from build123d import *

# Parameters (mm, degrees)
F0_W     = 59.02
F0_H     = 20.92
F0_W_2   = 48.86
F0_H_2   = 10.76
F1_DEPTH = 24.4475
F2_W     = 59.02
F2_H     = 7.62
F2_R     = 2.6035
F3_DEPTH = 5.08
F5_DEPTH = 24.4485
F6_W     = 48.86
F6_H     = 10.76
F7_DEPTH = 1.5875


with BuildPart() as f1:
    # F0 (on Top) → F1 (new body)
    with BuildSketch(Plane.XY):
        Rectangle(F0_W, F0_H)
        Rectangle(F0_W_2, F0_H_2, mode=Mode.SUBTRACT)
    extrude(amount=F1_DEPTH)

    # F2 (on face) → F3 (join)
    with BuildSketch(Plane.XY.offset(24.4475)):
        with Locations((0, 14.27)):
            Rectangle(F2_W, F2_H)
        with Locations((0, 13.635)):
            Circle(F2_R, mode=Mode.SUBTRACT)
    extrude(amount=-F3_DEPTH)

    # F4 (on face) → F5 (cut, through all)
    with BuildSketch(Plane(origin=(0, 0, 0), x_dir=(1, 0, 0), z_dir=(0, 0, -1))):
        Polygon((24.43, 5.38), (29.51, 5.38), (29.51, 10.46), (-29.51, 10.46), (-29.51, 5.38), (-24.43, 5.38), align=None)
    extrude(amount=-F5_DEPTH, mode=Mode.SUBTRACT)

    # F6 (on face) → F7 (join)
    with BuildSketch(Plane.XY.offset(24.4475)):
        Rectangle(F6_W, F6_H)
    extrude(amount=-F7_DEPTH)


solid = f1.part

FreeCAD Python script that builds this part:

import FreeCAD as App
import Part
import Sketcher

V = App.Vector
Q = App.Units.Quantity


def add_polygon(sketch, points):
    """Adds a closed chain of lines whose ends are joined by coincident constraints."""
    first, n = sketch.GeometryCount, len(points)
    for a, b in zip(points, points[1:] + points[:1]):
        sketch.addGeometry(Part.LineSegment(App.Vector(*a, 0), App.Vector(*b, 0)), False)
    for i in range(n):
        sketch.addConstraint(Sketcher.Constraint("Coincident", first + i, 2, first + (i + 1) % n, 1))

doc = App.newDocument("Part")
params = doc.addObject("Spreadsheet::Sheet", "Params")
for row, (alias, value) in enumerate([
    ("pad1_length", "0.9625 in"),
    ("sketch2_diameter", "0.205 in"),
    ("sketch2_height", "0.3 in"),
    ("pad2_length", "0.2 in"),
    ("sketch3_height", "0.2 in"),
    ("pad3_length", "0.0625 in"),
], start=1):
    params.set(f"A{row}", alias)
    params.set(f"B{row}", "=" + value)
    params.setAlias(f"B{row}", alias)

body = doc.addObject("PartDesign::Body", "Body")

# Sketch on XY plane
sketch1 = body.newObject("Sketcher::SketchObject", "Sketch")
sketch1.AttachmentSupport = (doc.getObject("XY_Plane"), [""])
sketch1.MapMode = "FlatFace"
add_polygon(sketch1, [(-30, 10), (-30, -10), (30, -10), (30, 10)])  # lines 0-3
add_polygon(sketch1, [(24, -5), (-24, -5), (-24, 5), (24, 5)])  # lines 4-7
sketch1.addConstraint(Sketcher.Constraint("Vertical", 0))
sketch1.addConstraint(Sketcher.Constraint("Horizontal", 1))
sketch1.addConstraint(Sketcher.Constraint("Vertical", 2))
sketch1.addConstraint(Sketcher.Constraint("Horizontal", 3))
sketch1.addConstraint(Sketcher.Constraint("Horizontal", 4))
sketch1.addConstraint(Sketcher.Constraint("Vertical", 5))
sketch1.addConstraint(Sketcher.Constraint("Horizontal", 6))
sketch1.addConstraint(Sketcher.Constraint("Vertical", 7))
sketch1.addConstraint(Sketcher.Constraint("Symmetric", 0, 2, 2, 2, -1, 1))
sketch1.addConstraint(Sketcher.Constraint("Symmetric", 4, 2, 6, 2, -1, 1))
sketch1.addConstraint(Sketcher.Constraint("DistanceX", 0, 2, 4, 2, Q("0.2 in")))
sketch1.addConstraint(Sketcher.Constraint("DistanceY", 0, 2, 4, 2, Q("0.2 in")))
sketch1.addConstraint(Sketcher.Constraint("DistanceX", 1, 1, 1, 2, 59.02))
sketch1.addConstraint(Sketcher.Constraint("DistanceY", 0, 2, 0, 1, 20.92))
pad1 = body.newObject("PartDesign::Pad", "Pad")
pad1.Profile = sketch1
pad1.setExpression("Length", "Params.pad1_length")

# Sketch on XY plane
sketch2 = body.newObject("Sketcher::SketchObject", "Sketch001")
sketch2.AttachmentSupport = (doc.getObject("XY_Plane"), [""])
sketch2.MapMode = "FlatFace"
sketch2.AttachmentOffset = App.Placement(V(0, 0, 0.9625 * 25.4), App.Rotation())
add_polygon(sketch2, [(-29.5, 18.1), (-29.5, 10.5), (29.5, 10.5), (29.5, 18.1)])  # lines 0-3
sketch2.addGeometry(Part.Circle(V(0, 13.6, 0), V(0, 0, 1), 2.6), False)  # 4
sketch2.addConstraint(Sketcher.Constraint("Vertical", 0))
sketch2.addConstraint(Sketcher.Constraint("Horizontal", 1))
sketch2.addConstraint(Sketcher.Constraint("Vertical", 2))
sketch2.addConstraint(Sketcher.Constraint("Horizontal", 3))
sketch2.addConstraint(Sketcher.Constraint("PointOnObject", 4, 3, -2))
sketch2.addConstraint(Sketcher.Constraint("Diameter", 4, Q("0.205 in")))
sketch2.addConstraint(Sketcher.Constraint("DistanceY", 0, 2, 0, 1, Q("0.3 in")))
sketch2.addConstraint(Sketcher.Constraint("DistanceY", 0, 2, 4, 3, Q("0.125 in")))
sketch2.addConstraint(Sketcher.Constraint("DistanceX", 1, 1, 1, 2, 59.02))
sketch2.addConstraint(Sketcher.Constraint("DistanceY", -1, 1, 4, 3, 13.635))
sketch2.addConstraint(Sketcher.Constraint("DistanceX", 0, 2, -1, 1, 29.51))
sketch2.setExpression("Constraints[9]", "Params.sketch2_diameter")
sketch2.setExpression("Constraints[10]", "Params.sketch2_height")
pad2 = body.newObject("PartDesign::Pad", "Pad001")
pad2.Profile = sketch2
pad2.setExpression("Length", "Params.pad2_length")
pad2.Reversed = True

# Sketch on XY plane
sketch3 = body.newObject("Sketcher::SketchObject", "Sketch002")
sketch3.AttachmentSupport = (doc.getObject("XY_Plane"), [""])
sketch3.MapMode = "FlatFace"
add_polygon(sketch3, [(30, -5), (30, -10), (-30, -10), (-30, -5)])  # lines 0-3
sketch3.addConstraint(Sketcher.Constraint("Vertical", 0))
sketch3.addConstraint(Sketcher.Constraint("Horizontal", 1))
sketch3.addConstraint(Sketcher.Constraint("Vertical", 2))
sketch3.addConstraint(Sketcher.Constraint("Horizontal", 3))
sketch3.addConstraint(Sketcher.Constraint("DistanceY", 0, 2, 0, 1, Q("0.2 in")))
sketch3.addConstraint(Sketcher.Constraint("DistanceX", 1, 2, 1, 1, 59.02))
sketch3.addConstraint(Sketcher.Constraint("DistanceX", -1, 1, 0, 2, 29.51))
sketch3.addConstraint(Sketcher.Constraint("DistanceY", 0, 2, -1, 1, 10.46))
sketch3.setExpression("Constraints[8]", "Params.sketch3_height")
pocket1 = body.newObject("PartDesign::Pocket", "Pocket")
pocket1.Profile = sketch3
pocket1.Type = "ThroughAll"
pocket1.Reversed = True

# Sketch on XY plane
sketch4 = body.newObject("Sketcher::SketchObject", "Sketch003")
sketch4.AttachmentSupport = (doc.getObject("XY_Plane"), [""])
sketch4.MapMode = "FlatFace"
sketch4.AttachmentOffset = App.Placement(V(0, 0, 0.9625 * 25.4), App.Rotation())
add_polygon(sketch4, [(-24, 5), (-24, -5), (24, -5), (24, 5)])  # lines 0-3
sketch4.addConstraint(Sketcher.Constraint("Vertical", 0))
sketch4.addConstraint(Sketcher.Constraint("Horizontal", 1))
sketch4.addConstraint(Sketcher.Constraint("Vertical", 2))
sketch4.addConstraint(Sketcher.Constraint("Horizontal", 3))
sketch4.addConstraint(Sketcher.Constraint("Symmetric", 0, 2, 2, 2, -1, 1))
sketch4.addConstraint(Sketcher.Constraint("DistanceX", 1, 1, 1, 2, 48.86))
sketch4.addConstraint(Sketcher.Constraint("DistanceY", 0, 2, 0, 1, 10.76))
pad3 = body.newObject("PartDesign::Pad", "Pad002")
pad3.Profile = sketch4
pad3.setExpression("Length", "Params.pad3_length")
pad3.Reversed = True

doc.recompute()
